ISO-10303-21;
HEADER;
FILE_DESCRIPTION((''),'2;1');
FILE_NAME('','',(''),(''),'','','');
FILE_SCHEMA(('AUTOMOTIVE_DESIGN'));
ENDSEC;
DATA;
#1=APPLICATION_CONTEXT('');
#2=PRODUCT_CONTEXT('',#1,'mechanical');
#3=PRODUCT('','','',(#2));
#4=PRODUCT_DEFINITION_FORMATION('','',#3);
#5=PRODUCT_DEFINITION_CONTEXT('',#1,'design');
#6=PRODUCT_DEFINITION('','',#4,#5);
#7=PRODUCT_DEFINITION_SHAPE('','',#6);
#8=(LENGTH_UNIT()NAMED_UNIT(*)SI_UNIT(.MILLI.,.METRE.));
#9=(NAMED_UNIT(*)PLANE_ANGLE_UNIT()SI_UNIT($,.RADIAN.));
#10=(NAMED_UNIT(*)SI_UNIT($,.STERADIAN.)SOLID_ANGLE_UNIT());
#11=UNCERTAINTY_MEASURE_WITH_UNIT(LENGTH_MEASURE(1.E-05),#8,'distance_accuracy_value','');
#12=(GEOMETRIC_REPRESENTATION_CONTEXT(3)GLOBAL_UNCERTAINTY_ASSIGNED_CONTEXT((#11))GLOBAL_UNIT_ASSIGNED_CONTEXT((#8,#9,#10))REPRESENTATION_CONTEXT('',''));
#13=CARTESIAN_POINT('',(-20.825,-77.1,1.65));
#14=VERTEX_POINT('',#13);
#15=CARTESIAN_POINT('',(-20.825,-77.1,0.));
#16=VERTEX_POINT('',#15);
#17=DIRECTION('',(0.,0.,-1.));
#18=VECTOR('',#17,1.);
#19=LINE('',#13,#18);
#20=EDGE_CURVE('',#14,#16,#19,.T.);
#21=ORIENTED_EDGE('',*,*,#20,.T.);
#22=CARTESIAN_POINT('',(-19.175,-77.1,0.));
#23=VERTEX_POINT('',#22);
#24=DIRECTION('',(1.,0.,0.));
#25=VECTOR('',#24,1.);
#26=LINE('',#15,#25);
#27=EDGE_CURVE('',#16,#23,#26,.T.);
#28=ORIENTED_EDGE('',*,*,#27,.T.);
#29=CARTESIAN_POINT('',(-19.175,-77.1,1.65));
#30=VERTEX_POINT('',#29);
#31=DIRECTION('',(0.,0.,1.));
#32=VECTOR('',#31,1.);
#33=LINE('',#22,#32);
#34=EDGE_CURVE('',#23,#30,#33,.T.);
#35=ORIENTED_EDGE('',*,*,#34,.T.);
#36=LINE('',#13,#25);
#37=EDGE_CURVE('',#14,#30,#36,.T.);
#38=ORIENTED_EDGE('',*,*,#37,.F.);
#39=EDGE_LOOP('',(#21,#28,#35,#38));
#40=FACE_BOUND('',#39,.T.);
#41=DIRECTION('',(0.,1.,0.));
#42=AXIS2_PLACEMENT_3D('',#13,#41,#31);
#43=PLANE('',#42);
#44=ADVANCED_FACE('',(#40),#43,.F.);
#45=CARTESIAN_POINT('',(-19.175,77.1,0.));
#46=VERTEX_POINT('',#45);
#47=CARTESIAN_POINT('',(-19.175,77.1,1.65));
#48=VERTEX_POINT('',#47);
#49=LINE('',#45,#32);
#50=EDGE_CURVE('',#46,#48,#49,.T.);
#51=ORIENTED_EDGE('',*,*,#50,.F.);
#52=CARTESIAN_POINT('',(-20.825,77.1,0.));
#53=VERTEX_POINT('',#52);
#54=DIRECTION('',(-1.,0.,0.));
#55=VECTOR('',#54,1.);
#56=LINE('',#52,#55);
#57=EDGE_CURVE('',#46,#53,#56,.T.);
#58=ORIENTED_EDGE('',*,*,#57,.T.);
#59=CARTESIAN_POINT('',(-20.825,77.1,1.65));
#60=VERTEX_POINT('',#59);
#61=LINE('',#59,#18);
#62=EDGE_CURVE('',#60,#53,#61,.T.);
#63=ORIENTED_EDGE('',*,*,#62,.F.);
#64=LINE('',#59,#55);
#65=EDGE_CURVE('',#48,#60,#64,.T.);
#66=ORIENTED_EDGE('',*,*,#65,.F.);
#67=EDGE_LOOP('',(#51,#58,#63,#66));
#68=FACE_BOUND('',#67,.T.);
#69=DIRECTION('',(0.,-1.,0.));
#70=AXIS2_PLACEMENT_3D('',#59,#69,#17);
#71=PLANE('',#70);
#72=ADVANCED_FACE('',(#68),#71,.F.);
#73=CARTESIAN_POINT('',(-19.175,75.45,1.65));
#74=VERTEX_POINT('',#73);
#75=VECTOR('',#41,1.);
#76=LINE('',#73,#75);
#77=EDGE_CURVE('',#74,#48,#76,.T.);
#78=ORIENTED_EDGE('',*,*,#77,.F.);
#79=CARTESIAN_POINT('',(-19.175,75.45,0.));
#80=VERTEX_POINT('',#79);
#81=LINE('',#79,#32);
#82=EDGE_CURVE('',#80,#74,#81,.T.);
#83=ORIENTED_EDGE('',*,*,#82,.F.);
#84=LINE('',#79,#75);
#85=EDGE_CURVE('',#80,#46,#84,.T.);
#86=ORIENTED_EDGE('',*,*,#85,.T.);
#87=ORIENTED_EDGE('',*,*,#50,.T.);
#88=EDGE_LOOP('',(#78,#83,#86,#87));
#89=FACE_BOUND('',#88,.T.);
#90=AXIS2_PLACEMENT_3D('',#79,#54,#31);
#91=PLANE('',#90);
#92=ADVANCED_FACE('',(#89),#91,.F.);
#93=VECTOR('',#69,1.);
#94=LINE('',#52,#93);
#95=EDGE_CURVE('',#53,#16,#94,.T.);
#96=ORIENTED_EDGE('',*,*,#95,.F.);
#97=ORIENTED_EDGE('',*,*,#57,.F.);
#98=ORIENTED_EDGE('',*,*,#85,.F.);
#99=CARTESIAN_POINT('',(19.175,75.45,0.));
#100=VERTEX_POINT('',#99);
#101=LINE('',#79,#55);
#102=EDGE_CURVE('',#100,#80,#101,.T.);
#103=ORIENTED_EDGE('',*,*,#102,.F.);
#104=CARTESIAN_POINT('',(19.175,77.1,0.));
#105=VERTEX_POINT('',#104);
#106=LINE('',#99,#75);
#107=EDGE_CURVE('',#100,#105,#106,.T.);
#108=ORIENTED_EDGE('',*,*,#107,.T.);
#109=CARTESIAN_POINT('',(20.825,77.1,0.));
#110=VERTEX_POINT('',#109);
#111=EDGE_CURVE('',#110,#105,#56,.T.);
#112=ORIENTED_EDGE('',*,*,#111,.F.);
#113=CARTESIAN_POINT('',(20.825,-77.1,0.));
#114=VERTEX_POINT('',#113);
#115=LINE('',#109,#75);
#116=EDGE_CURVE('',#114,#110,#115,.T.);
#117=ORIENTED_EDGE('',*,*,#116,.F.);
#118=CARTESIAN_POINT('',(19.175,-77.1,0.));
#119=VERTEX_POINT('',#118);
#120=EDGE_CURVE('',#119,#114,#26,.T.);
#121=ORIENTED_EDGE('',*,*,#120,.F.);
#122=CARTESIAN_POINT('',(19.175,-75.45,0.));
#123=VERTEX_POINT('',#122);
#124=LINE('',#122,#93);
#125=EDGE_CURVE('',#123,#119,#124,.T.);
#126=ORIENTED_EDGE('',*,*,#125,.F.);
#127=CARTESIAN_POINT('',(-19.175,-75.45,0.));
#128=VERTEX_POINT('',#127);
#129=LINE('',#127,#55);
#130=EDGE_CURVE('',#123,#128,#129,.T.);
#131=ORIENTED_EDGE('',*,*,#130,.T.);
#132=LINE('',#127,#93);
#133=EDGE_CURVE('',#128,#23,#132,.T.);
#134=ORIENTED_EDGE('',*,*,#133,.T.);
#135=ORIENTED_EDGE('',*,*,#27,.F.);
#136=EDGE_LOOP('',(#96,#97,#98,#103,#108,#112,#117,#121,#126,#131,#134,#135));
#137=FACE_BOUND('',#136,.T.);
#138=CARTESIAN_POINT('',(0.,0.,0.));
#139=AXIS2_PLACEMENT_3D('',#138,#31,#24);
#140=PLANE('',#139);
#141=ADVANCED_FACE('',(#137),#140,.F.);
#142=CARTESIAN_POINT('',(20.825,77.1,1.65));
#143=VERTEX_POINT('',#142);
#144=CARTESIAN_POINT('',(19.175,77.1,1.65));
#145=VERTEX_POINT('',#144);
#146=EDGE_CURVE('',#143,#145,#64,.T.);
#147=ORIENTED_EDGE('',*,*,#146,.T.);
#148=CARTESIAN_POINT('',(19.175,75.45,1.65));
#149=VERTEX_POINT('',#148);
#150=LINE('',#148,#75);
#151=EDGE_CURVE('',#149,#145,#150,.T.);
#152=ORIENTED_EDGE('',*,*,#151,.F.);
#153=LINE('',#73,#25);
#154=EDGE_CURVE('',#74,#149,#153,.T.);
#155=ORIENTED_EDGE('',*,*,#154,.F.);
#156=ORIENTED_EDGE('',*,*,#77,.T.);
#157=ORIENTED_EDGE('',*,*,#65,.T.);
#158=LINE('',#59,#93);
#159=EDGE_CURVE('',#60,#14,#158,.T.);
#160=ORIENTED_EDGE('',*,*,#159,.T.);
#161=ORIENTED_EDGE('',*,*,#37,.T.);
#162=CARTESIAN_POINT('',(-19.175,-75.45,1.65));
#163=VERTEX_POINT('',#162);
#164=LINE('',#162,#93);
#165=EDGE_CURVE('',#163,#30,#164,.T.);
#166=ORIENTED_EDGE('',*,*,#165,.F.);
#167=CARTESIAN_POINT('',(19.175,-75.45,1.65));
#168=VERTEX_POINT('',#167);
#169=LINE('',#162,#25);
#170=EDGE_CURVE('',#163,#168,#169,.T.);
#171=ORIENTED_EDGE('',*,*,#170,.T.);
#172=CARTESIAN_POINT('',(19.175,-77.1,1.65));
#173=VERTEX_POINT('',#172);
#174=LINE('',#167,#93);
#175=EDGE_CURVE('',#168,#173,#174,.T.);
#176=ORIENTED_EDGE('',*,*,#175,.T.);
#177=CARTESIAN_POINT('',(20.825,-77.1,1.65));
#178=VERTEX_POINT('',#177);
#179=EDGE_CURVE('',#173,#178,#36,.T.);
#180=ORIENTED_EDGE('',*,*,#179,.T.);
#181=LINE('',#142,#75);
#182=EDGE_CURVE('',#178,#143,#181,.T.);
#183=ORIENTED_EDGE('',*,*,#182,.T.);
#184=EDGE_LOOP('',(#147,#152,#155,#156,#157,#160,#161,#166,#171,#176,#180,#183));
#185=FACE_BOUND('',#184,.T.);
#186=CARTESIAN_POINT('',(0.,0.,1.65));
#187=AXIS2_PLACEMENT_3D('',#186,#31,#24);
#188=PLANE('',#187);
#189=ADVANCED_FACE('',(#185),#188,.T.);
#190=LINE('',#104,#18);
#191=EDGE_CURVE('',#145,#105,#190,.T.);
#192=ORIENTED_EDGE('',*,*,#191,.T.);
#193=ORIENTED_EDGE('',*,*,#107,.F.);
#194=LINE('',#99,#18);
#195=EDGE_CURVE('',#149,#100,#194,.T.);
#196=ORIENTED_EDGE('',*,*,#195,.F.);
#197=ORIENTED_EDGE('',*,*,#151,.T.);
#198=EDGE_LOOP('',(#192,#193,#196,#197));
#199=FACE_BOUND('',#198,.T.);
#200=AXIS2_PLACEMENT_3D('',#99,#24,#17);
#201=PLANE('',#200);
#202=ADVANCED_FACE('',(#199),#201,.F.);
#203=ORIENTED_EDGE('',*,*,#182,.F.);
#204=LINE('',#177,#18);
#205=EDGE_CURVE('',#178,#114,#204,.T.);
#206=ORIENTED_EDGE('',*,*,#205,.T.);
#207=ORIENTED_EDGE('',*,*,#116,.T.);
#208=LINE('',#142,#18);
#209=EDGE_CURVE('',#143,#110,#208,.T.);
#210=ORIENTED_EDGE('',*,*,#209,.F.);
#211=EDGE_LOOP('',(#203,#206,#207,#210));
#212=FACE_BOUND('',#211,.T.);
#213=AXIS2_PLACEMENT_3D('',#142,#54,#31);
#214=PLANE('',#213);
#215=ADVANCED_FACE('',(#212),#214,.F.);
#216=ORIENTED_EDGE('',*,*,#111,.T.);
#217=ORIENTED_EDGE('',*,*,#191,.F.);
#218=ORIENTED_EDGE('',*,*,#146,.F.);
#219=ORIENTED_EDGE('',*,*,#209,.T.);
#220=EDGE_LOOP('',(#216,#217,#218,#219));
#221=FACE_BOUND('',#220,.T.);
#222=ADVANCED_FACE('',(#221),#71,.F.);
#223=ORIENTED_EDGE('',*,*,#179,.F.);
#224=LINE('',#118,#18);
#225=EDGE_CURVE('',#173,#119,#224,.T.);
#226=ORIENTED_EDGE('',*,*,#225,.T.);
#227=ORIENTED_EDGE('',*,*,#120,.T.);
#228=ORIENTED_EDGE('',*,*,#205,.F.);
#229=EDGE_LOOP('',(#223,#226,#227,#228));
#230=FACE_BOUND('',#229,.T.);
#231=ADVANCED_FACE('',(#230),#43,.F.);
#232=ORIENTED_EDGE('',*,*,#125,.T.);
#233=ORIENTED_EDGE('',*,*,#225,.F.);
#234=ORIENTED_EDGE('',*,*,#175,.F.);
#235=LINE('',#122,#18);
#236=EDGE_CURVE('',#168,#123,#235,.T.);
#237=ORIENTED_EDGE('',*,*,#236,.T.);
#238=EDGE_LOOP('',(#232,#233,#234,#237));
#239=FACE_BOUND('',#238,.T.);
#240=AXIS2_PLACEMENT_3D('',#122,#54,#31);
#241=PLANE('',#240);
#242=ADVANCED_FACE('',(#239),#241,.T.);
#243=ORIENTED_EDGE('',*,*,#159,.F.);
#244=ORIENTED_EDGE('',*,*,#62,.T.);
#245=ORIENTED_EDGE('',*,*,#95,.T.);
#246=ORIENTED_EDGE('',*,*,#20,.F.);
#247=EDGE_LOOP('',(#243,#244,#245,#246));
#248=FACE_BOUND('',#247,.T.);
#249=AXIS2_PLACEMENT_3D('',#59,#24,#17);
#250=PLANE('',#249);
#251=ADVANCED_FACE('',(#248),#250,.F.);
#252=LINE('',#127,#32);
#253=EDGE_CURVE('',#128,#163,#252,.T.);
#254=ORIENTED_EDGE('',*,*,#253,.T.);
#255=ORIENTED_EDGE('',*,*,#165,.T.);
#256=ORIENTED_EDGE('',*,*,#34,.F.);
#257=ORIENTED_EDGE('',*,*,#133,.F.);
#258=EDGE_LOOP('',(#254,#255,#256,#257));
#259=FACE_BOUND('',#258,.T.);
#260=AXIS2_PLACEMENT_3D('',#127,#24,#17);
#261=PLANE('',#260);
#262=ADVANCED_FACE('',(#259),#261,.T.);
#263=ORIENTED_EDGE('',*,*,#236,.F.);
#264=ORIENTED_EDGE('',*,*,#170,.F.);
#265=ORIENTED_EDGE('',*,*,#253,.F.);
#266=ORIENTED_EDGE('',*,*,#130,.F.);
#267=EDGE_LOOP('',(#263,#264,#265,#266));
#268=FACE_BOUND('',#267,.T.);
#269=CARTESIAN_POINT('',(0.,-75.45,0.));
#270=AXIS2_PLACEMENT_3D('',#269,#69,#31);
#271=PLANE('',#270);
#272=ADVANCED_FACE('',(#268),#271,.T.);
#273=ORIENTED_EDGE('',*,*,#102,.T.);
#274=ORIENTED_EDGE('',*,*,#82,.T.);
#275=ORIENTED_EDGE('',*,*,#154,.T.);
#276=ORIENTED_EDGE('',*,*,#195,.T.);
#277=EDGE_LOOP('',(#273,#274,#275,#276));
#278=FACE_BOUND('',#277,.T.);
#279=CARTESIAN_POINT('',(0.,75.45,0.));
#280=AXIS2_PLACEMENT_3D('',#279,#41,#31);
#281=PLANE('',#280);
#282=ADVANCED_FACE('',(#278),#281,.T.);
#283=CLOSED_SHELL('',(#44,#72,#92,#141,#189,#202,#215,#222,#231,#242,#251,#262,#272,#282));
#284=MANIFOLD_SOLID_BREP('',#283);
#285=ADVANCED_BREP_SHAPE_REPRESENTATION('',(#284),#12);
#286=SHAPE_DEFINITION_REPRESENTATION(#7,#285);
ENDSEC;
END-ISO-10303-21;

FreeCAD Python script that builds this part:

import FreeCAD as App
import Part
import Sketcher
from FreeCAD import Vector
Q = App.Units.Quantity


def add_polygon(sketch, points):
    """Adds a closed chain of lines whose ends are joined by coincident constraints."""
    first, n = sketch.GeometryCount, len(points)
    for a, b in zip(points, points[1:] + points[:1]):
        sketch.addGeometry(Part.LineSegment(App.Vector(*a, 0), App.Vector(*b, 0)), False)
    for i in range(n):
        sketch.addConstraint(Sketcher.Constraint("Coincident", first + i, 2, first + (i + 1) % n, 1))

doc = App.newDocument("Part")
params = doc.addObject("Spreadsheet::Sheet", "Params")
for row, (alias, value) in enumerate([
    ("sketch1_height", "154.2 mm"),
    ("sketch1_width", "41.65 mm"),
    ("pad1_length", "1.65 mm"),
    ("sketch2_width", "38.35 mm"),
    ("sketch2_height", "1.65 mm"),
    ("pocket1_length", "1.65 mm"),
], start=1):
    params.set(f"A{row}", alias)
    params.set(f"B{row}", "=" + value)
    params.setAlias(f"B{row}", alias)

body = doc.addObject("PartDesign::Body", "Body")

sketch1 = body.newObject("Sketcher::SketchObject", "Sketch")
sketch1.AttachmentSupport = (doc.getObject("XY_Plane"), [""])
sketch1.MapMode = "FlatFace"
add_polygon(sketch1, [(-21, 77), (-21, -77), (21, -77), (21, 77)])
sketch1.addConstraint(Sketcher.Constraint("Vertical", 0))
sketch1.addConstraint(Sketcher.Constraint("Horizontal", 1))
sketch1.addConstraint(Sketcher.Constraint("Vertical", 2))
sketch1.addConstraint(Sketcher.Constraint("Horizontal", 3))
sketch1.addConstraint(Sketcher.Constraint("Symmetric", 0, 2, 2, 2, -1, 1))
sketch1.addConstraint(Sketcher.Constraint("DistanceY", 0, 2, 0, 1, Q("154.2 mm")))
sketch1.addConstraint(Sketcher.Constraint("DistanceX", 1, 1, 1, 2, Q("41.65 mm")))
sketch1.setExpression("Constraints[9]", "Params.sketch1_height")
sketch1.setExpression("Constraints[10]", "Params.sketch1_width")
pad1 = body.newObject("PartDesign::Pad", "Pad")
pad1.Profile = sketch1
pad1.setExpression("Length", "Params.pad1_length")

sketch2 = body.newObject("Sketcher::SketchObject", "Sketch001")
sketch2.AttachmentSupport = (doc.getObject("XZ_Plane"), [""])
sketch2.MapMode = "FlatFace"
sketch2.AttachmentOffset = App.Placement(Vector(0, 0, -77.1), App.Rotation())
add_polygon(sketch2, [(-19.2, 0), (-19.2, 1.6), (19.2, 1.6), (19.2, 0)])
sketch2.addConstraint(Sketcher.Constraint("Vertical", 0))
sketch2.addConstraint(Sketcher.Constraint("Horizontal", 1))
sketch2.addConstraint(Sketcher.Constraint("Vertical", 2))
sketch2.addConstraint(Sketcher.Constraint("Horizontal", 3))
sketch2.addConstraint(Sketcher.Constraint("Symmetric", 2, 2, 3, 2, -1, 1))
sketch2.addConstraint(Sketcher.Constraint("DistanceX", 1, 1, 1, 2, Q("38.35 mm")))
sketch2.addConstraint(Sketcher.Constraint("DistanceY", 0, 1, 0, 2, Q("1.65 mm")))
sketch2.setExpression("Constraints[9]", "Params.sketch2_width")
sketch2.setExpression("Constraints[10]", "Params.sketch2_height")
pocket1 = body.newObject("PartDesign::Pocket", "Pocket")
pocket1.Profile = sketch2
pocket1.setExpression("Length", "Params.pocket1_length")
pocket1.Reversed = True
doc.recompute()

mirrored = body.newObject("PartDesign::Mirrored", "Mirrored")
mirrored.Originals = [pocket1]
mirrored.MirrorPlane = (doc.getObject("XZ_Plane"), [""])
body.Tip = mirrored

doc.recompute()
